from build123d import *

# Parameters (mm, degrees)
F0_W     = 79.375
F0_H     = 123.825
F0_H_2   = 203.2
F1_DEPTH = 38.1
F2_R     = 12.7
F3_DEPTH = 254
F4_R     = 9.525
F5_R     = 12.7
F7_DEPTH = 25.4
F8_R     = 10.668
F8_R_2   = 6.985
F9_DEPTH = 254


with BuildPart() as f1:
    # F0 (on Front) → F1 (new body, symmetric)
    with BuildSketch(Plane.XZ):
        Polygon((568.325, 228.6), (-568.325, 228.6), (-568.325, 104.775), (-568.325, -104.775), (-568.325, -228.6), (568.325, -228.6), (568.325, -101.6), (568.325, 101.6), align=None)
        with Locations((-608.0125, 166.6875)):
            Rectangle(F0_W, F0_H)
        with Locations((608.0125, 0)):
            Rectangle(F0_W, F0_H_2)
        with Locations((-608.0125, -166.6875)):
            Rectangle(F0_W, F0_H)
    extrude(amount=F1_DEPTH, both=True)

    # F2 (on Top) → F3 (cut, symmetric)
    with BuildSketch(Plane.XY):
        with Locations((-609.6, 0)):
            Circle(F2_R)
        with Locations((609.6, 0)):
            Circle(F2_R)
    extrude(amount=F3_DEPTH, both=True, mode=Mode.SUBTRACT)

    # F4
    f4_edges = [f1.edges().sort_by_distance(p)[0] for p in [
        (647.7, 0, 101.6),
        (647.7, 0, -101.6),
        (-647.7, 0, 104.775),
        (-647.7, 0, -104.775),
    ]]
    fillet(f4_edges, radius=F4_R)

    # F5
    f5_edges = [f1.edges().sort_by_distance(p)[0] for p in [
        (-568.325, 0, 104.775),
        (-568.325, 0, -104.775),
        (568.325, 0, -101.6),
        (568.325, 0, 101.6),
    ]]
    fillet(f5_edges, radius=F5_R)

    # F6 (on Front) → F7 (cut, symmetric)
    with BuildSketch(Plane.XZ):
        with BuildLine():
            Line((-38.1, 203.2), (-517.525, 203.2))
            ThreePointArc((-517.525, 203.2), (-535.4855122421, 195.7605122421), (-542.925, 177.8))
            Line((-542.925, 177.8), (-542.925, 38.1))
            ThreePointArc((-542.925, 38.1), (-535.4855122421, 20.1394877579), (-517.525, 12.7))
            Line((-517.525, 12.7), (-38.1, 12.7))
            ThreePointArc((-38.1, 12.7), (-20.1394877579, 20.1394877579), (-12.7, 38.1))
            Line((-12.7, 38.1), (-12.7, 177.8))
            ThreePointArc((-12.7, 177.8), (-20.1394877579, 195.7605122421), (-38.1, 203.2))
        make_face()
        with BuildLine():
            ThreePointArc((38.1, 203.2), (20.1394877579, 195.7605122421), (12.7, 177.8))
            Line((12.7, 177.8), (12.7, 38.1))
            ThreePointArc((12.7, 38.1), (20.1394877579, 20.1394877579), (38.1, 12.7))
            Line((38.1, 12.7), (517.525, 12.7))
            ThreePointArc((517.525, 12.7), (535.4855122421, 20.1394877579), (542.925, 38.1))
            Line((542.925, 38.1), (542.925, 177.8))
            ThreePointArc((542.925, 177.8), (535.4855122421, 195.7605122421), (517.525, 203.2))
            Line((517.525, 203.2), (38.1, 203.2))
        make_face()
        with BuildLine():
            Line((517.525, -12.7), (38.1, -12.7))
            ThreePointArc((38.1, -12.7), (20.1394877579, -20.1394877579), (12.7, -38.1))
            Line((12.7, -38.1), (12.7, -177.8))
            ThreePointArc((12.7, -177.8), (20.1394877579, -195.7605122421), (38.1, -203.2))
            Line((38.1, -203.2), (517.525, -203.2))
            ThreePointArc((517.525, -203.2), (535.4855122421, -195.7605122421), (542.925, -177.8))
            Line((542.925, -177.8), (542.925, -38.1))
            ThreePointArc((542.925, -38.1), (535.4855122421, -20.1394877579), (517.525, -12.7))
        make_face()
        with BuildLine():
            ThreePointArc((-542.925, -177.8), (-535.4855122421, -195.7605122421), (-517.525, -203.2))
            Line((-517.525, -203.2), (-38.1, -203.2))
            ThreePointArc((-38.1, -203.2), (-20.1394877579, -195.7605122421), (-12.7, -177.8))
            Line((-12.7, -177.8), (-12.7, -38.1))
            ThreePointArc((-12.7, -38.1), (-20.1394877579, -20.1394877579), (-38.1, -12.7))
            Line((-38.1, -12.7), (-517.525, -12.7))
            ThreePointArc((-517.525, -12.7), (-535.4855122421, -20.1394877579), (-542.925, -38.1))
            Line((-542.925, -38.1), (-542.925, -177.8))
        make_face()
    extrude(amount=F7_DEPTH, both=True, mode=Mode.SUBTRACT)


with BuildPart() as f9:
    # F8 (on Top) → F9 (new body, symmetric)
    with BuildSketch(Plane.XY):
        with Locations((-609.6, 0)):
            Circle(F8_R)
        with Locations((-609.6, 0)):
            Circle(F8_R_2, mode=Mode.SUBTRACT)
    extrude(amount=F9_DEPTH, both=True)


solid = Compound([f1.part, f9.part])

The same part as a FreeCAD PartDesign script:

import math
import FreeCAD as App
import Part
import Sketcher
Q = App.Units.Quantity


def edges_at(feature, points):
    """Names of the edges that pass closest to the given points."""
    edges = feature.Shape.Edges
    near = lambda p: min(range(len(edges)), key=lambda i: edges[i].distToShape(Part.Vertex(*p))[0])
    return sorted({f"Edge{near(p) + 1}" for p in points})


def add_polygon(sketch, points):
    """Adds a closed chain of lines whose ends are joined by coincident constraints."""
    first, n = sketch.GeometryCount, len(points)
    for a, b in zip(points, points[1:] + points[:1]):
        sketch.addGeometry(Part.LineSegment(App.Vector(*a, 0), App.Vector(*b, 0)), False)
    for i in range(n):
        sketch.addConstraint(Sketcher.Constraint("Coincident", first + i, 2, first + (i + 1) % n, 1))

doc = App.newDocument("Part")
params = doc.addObject("Spreadsheet::Sheet", "Params")
for row, (alias, value) in enumerate([
    ("sketch1_height", "5 in"),
    ("sketch1_height2", "8 in"),
    ("sketch1_height3", "8.25 in"),
    ("sketch1_width", "47.875 in"),
    ("pad1_length", "3 in"),
    ("sketch2_diameter", "1 in"),
    ("pocket1_length", "20 in"),
    ("fillet_radius", "0.375 in"),
    ("fillet2_radius", "0.5 in"),
    ("sketch3_radius", "1 in"),
    ("sketch3_height", "5.5 in"),
    ("sketch3_width", "18.875 in"),
    ("pocket2_length", "2 in"),
    ("sketch4_diameter", "0.84 in"),
    ("sketch4_diameter2", "0.55 in"),
    ("pad2_length", "20 in"),
], start=1):
    params.set(f"A{row}", alias)
    params.set(f"B{row}", "=" + value)
    params.setAlias(f"B{row}", alias)

body = doc.addObject("PartDesign::Body", "Body")

# Sketch on XZ plane
sketch1 = body.newObject("Sketcher::SketchObject", "Sketch")
sketch1.AttachmentSupport = (doc.getObject("XZ_Plane"), [""])
sketch1.MapMode = "FlatFace"
add_polygon(sketch1, [(568, 229), (-648, 229), (-648, 105), (-568, 105), (-568, -105), (-648, -105), (-648, -229), (568, -229), (568, -102), (648, -102), (648, 102), (568, 102)])  # lines 0-11
sketch1.addConstraint(Sketcher.Constraint("Horizontal", 0))
sketch1.addConstraint(Sketcher.Constraint("Vertical", 1))
sketch1.addConstraint(Sketcher.Constraint("Horizontal", 2))
sketch1.addConstraint(Sketcher.Constraint("Vertical", 3))
sketch1.addConstraint(Sketcher.Constraint("Horizontal", 4))
sketch1.addConstraint(Sketcher.Constraint("Vertical", 5))
sketch1.addConstraint(Sketcher.Constraint("Horizontal", 6))
sketch1.addConstraint(Sketcher.Constraint("Vertical", 7))
sketch1.addConstraint(Sketcher.Constraint("Horizontal", 8))
sketch1.addConstraint(Sketcher.Constraint("Vertical", 9))
sketch1.addConstraint(Sketcher.Constraint("Horizontal", 10))
sketch1.addConstraint(Sketcher.Constraint("Vertical", 11))
sketch1.addConstraint(Sketcher.Constraint("Symmetric", 1, 2, 4, 2, -1))
sketch1.addConstraint(Sketcher.Constraint("Symmetric", 7, 2, 10, 2, -1))
sketch1.addConstraint(Sketcher.Constraint("Equal", 4, 8))
sketch1.addConstraint(Sketcher.Constraint("Equal", 1, 5))
sketch1.addConstraint(Sketcher.Constraint("DistanceY", 7, 1, 7, 2, Q("5 in")))
sketch1.addConstraint(Sketcher.Constraint("DistanceY", 9, 1, 9, 2, Q("8 in")))
sketch1.addConstraint(Sketcher.Constraint("DistanceX", 4, 2, 8, 2, Q("51 in")))
sketch1.addConstraint(Sketcher.Constraint("DistanceY", 3, 2, 3, 1, Q("8.25 in")))
sketch1.addConstraint(Sketcher.Constraint("DistanceX", 0, 2, -1, 1, Q("25.5 in")))
sketch1.addConstraint(Sketcher.Constraint("DistanceX", 0, 2, 0, 1, Q("47.875 in")))
sketch1.setExpression("Constraints[28]", "Params.sketch1_height")
sketch1.setExpression("Constraints[29]", "Params.sketch1_height2")
sketch1.setExpression("Constraints[31]", "Params.sketch1_height3")
sketch1.setExpression("Constraints[33]", "Params.sketch1_width")
pad1 = body.newObject("PartDesign::Pad", "Pad")
pad1.Profile = sketch1
pad1.setExpression("Length", "Params.pad1_length")
pad1.Midplane = True

# Sketch on XY plane
sketch2 = body.newObject("Sketcher::SketchObject", "Sketch001")
sketch2.AttachmentSupport = (doc.getObject("XY_Plane"), [""])
sketch2.MapMode = "FlatFace"
sketch2.addGeometry(Part.Circle(App.Vector(-610, 0, 0), App.Vector(0, 0, 1), 13), False)
sketch2.addGeometry(Part.Circle(App.Vector(610, 0, 0), App.Vector(0, 0, 1), 13), False)
sketch2.addConstraint(Sketcher.Constraint("Equal", 0, 1))
sketch2.addConstraint(Sketcher.Constraint("Symmetric", 0, 3, 1, 3, -1, 1))
sketch2.addConstraint(Sketcher.Constraint("PointOnObject", 0, 3, -1))
sketch2.addConstraint(Sketcher.Constraint("Diameter", 0, Q("1 in")))
sketch2.addConstraint(Sketcher.Constraint("DistanceX", 0, 3, -1, 1, Q("24 in")))
sketch2.setExpression("Constraints[3]", "Params.sketch2_diameter")
pocket1 = body.newObject("PartDesign::Pocket", "Pocket")
pocket1.Profile = sketch2
pocket1.setExpression("Length", "Params.pocket1_length")
pocket1.Midplane = True
doc.recompute()

fillet = body.newObject("PartDesign::Fillet", "Fillet")
fillet.Base = (pocket1, edges_at(pocket1, [
    (647.7, 0, 101.6),
    (647.7, 0, -101.6),
    (-647.7, 0, 104.775),
    (-647.7, 0, -104.775),
]))
fillet.setExpression("Radius", "Params.fillet_radius")
doc.recompute()

fillet2 = body.newObject("PartDesign::Fillet", "Fillet001")
fillet2.Base = (fillet, edges_at(fillet, [
    (-568.325, 0, 104.775),
    (-568.325, 0, -104.775),
    (568.325, 0, -101.6),
    (568.325, 0, 101.6),
]))
fillet2.setExpression("Radius", "Params.fillet2_radius")

# Sketch on XZ plane
sketch3 = body.newObject("Sketcher::SketchObject", "Sketch002")
sketch3.AttachmentSupport = (doc.getObject("XZ_Plane"), [""])
sketch3.MapMode = "FlatFace"
sketch3.addGeometry(Part.LineSegment(App.Vector(-38, 203, 0), App.Vector(-518, 203, 0)), False)
sketch3.addGeometry(Part.ArcOfCircle(Part.Circle(App.Vector(-518, 178, 0), App.Vector(0, 0, 1), 25), math.radians(90), math.radians(180)), False)
sketch3.addGeometry(Part.LineSegment(App.Vector(-543, 178, 0), App.Vector(-543, 38, 0)), False)
sketch3.addGeometry(Part.ArcOfCircle(Part.Circle(App.Vector(-518, 38, 0), App.Vector(0, 0, 1), 25), math.radians(180), math.radians(270)), False)
sketch3.addGeometry(Part.LineSegment(App.Vector(-518, 13, 0), App.Vector(-38, 13, 0)), False)
sketch3.addGeometry(Part.ArcOfCircle(Part.Circle(App.Vector(-38, 38, 0), App.Vector(0, 0, 1), 25), math.radians(-90), math.radians(0)), False)
sketch3.addGeometry(Part.LineSegment(App.Vector(-13, 38, 0), App.Vector(-13, 178, 0)), False)
sketch3.addGeometry(Part.ArcOfCircle(Part.Circle(App.Vector(-38, 178, 0), App.Vector(0, 0, 1), 25), math.radians(0), math.radians(90)), False)
sketch3.addGeometry(Part.ArcOfCircle(Part.Circle(App.Vector(38, 178, 0), App.Vector(0, 0, 1), 25), math.radians(90), math.radians(180)), False)
sketch3.addGeometry(Part.LineSegment(App.Vector(13, 178, 0), App.Vector(13, 38, 0)), False)
sketch3.addGeometry(Part.ArcOfCircle(Part.Circle(App.Vector(38, 38, 0), App.Vector(0, 0, 1), 25), math.radians(180), math.radians(270)), False)
sketch3.addGeometry(Part.LineSegment(App.Vector(38, 13, 0), App.Vector(518, 13, 0)), False)
sketch3.addGeometry(Part.ArcOfCircle(Part.Circle(App.Vector(518, 38, 0), App.Vector(0, 0, 1), 25), math.radians(-90), math.radians(0)), False)
sketch3.addGeometry(Part.LineSegment(App.Vector(543, 38, 0), App.Vector(543, 178, 0)), False)
sketch3.addGeometry(Part.ArcOfCircle(Part.Circle(App.Vector(518, 178, 0), App.Vector(0, 0, 1), 25), math.radians(0), math.radians(90)), False)
sketch3.addGeometry(Part.LineSegment(App.Vector(518, 203, 0), App.Vector(38, 203, 0)), False)
sketch3.addGeometry(Part.LineSegment(App.Vector(518, -13, 0), App.Vector(38, -13, 0)), False)
sketch3.addGeometry(Part.ArcOfCircle(Part.Circle(App.Vector(38, -38, 0), App.Vector(0, 0, 1), 25), math.radians(90), math.radians(180)), False)
sketch3.addGeometry(Part.LineSegment(App.Vector(13, -38, 0), App.Vector(13, -178, 0)), False)
sketch3.addGeometry(Part.ArcOfCircle(Part.Circle(App.Vector(38, -178, 0), App.Vector(0, 0, 1), 25), math.radians(180), math.radians(270)), False)
sketch3.addGeometry(Part.LineSegment(App.Vector(38, -203, 0), App.Vector(518, -203, 0)), False)
sketch3.addGeometry(Part.ArcOfCircle(Part.Circle(App.Vector(518, -178, 0), App.Vector(0, 0, 1), 25), math.radians(-90), math.radians(0)), False)
sketch3.addGeometry(Part.LineSegment(App.Vector(543, -178, 0), App.Vector(543, -38, 0)), False)
sketch3.addGeometry(Part.ArcOfCircle(Part.Circle(App.Vector(518, -38, 0), App.Vector(0, 0, 1), 25), math.radians(0), math.radians(90)), False)
sketch3.addGeometry(Part.ArcOfCircle(Part.Circle(App.Vector(-518, -178, 0), App.Vector(0, 0, 1), 25), math.radians(180), math.radians(270)), False)
sketch3.addGeometry(Part.LineSegment(App.Vector(-518, -203, 0), App.Vector(-38, -203, 0)), False)
sketch3.addGeometry(Part.ArcOfCircle(Part.Circle(App.Vector(-38, -178, 0), App.Vector(0, 0, 1), 25), math.radians(-90), math.radians(0)), False)
sketch3.addGeometry(Part.LineSegment(App.Vector(-13, -178, 0), App.Vector(-13, -38, 0)), False)
sketch3.addGeometry(Part.ArcOfCircle(Part.Circle(App.Vector(-38, -38, 0), App.Vector(0, 0, 1), 25), math.radians(0), math.radians(90)), False)
sketch3.addGeometry(Part.LineSegment(App.Vector(-38, -13, 0), App.Vector(-518, -13, 0)), False)
sketch3.addGeometry(Part.ArcOfCircle(Part.Circle(App.Vector(-518, -38, 0), App.Vector(0, 0, 1), 25), math.radians(90), math.radians(180)), False)
sketch3.addGeometry(Part.LineSegment(App.Vector(-543, -38, 0), App.Vector(-543, -178, 0)), False)
sketch3.addConstraint(Sketcher.Constraint("Tangent", 0, 2, 1, 1))
sketch3.addConstraint(Sketcher.Constraint("Tangent", 1, 2, 2, 1))
sketch3.addConstraint(Sketcher.Constraint("Tangent", 2, 2, 3, 1))
sketch3.addConstraint(Sketcher.Constraint("Tangent", 3, 2, 4, 1))
sketch3.addConstraint(Sketcher.Constraint("Tangent", 4, 2, 5, 1))
sketch3.addConstraint(Sketcher.Constraint("Tangent", 5, 2, 6, 1))
sketch3.addConstraint(Sketcher.Constraint("Tangent", 6, 2, 7, 1))
sketch3.addConstraint(Sketcher.Constraint("Tangent", 7, 2, 0, 1))
sketch3.addConstraint(Sketcher.Constraint("Tangent", 8, 2, 9, 1))
sketch3.addConstraint(Sketcher.Constraint("Tangent", 9, 2, 10, 1))
sketch3.addConstraint(Sketcher.Constraint("Tangent", 10, 2, 11, 1))
sketch3.addConstraint(Sketcher.Constraint("Tangent", 11, 2, 12, 1))
sketch3.addConstraint(Sketcher.Constraint("Tangent", 12, 2, 13, 1))
sketch3.addConstraint(Sketcher.Constraint("Tangent", 13, 2, 14, 1))
sketch3.addConstraint(Sketcher.Constraint("Tangent", 14, 2, 15, 1))
sketch3.addConstraint(Sketcher.Constraint("Tangent", 15, 2, 8, 1))
sketch3.addConstraint(Sketcher.Constraint("Tangent", 16, 2, 17, 1))
sketch3.addConstraint(Sketcher.Constraint("Tangent", 17, 2, 18, 1))
sketch3.addConstraint(Sketcher.Constraint("Tangent", 18, 2, 19, 1))
sketch3.addConstraint(Sketcher.Constraint("Tangent", 19, 2, 20, 1))
sketch3.addConstraint(Sketcher.Constraint("Tangent", 20, 2, 21, 1))
sketch3.addConstraint(Sketcher.Constraint("Tangent", 21, 2, 22, 1))
sketch3.addConstraint(Sketcher.Constraint("Tangent", 22, 2, 23, 1))
sketch3.addConstraint(Sketcher.Constraint("Tangent", 23, 2, 16, 1))
sketch3.addConstraint(Sketcher.Constraint("Tangent", 24, 2, 25, 1))
sketch3.addConstraint(Sketcher.Constraint("Tangent", 25, 2, 26, 1))
sketch3.addConstraint(Sketcher.Constraint("Tangent", 26, 2, 27, 1))
sketch3.addConstraint(Sketcher.Constraint("Tangent", 27, 2, 28, 1))
sketch3.addConstraint(Sketcher.Constraint("Tangent", 28, 2, 29, 1))
sketch3.addConstraint(Sketcher.Constraint("Tangent", 29, 2, 30, 1))
sketch3.addConstraint(Sketcher.Constraint("Tangent", 30, 2, 31, 1))
sketch3.addConstraint(Sketcher.Constraint("Tangent", 31, 2, 24, 1))
sketch3.addConstraint(Sketcher.Constraint("Horizontal", 0))
sketch3.addConstraint(Sketcher.Constraint("Vertical", 2))
sketch3.addConstraint(Sketcher.Constraint("Horizontal", 4))
sketch3.addConstraint(Sketcher.Constraint("Vertical", 6))
sketch3.addConstraint(Sketcher.Constraint("Vertical", 9))
sketch3.addConstraint(Sketcher.Constraint("Horizontal", 11))
sketch3.addConstraint(Sketcher.Constraint("Vertical", 13))
sketch3.addConstraint(Sketcher.Constraint("Horizontal", 15))
sketch3.addConstraint(Sketcher.Constraint("Horizontal", 16))
sketch3.addConstraint(Sketcher.Constraint("Vertical", 18))
sketch3.addConstraint(Sketcher.Constraint("Horizontal", 20))
sketch3.addConstraint(Sketcher.Constraint("Vertical", 22))
sketch3.addConstraint(Sketcher.Constraint("Horizontal", 25))
sketch3.addConstraint(Sketcher.Constraint("Vertical", 27))
sketch3.addConstraint(Sketcher.Constraint("Horizontal", 29))
sketch3.addConstraint(Sketcher.Constraint("Vertical", 31))
sketch3.addConstraint(Sketcher.Constraint("Equal", 1, 3))
sketch3.addConstraint(Sketcher.Constraint("Equal", 3, 5))
sketch3.addConstraint(Sketcher.Constraint("Equal", 5, 7))
sketch3.addConstraint(Sketcher.Constraint("Equal", 7, 8))
sketch3.addConstraint(Sketcher.Constraint("Equal", 8, 10))
sketch3.addConstraint(Sketcher.Constraint("Equal", 10, 12))
sketch3.addConstraint(Sketcher.Constraint("Equal", 12, 14))
sketch3.addConstraint(Sketcher.Constraint("Equal", 14, 17))
sketch3.addConstraint(Sketcher.Constraint("Equal", 17, 19))
sketch3.addConstraint(Sketcher.Constraint("Equal", 19, 21))
sketch3.addConstraint(Sketcher.Constraint("Equal", 21, 23))
sketch3.addConstraint(Sketcher.Constraint("Equal", 23, 24))
sketch3.addConstraint(Sketcher.Constraint("Equal", 24, 26))
sketch3.addConstraint(Sketcher.Constraint("Equal", 26, 28))
sketch3.addConstraint(Sketcher.Constraint("Equal", 28, 30))
sketch3.addConstraint(Sketcher.Constraint("Symmetric", 5, 3, 17, 3, -1, 1))
sketch3.addConstraint(Sketcher.Constraint("Symmetric", 1, 3, 21, 3, -1, 1))
sketch3.addConstraint(Sketcher.Constraint("Symmetric", 14, 3, 24, 3, -1, 1))
sketch3.addConstraint(Sketcher.Constraint("Symmetric", 10, 3, 28, 3, -1, 1))
sketch3.addConstraint(Sketcher.Constraint("Symmetric", 7, 3, 8, 3, -2))
sketch3.addConstraint(Sketcher.Constraint("Symmetric", 3, 3, 12, 3, -2))
sketch3.addConstraint(Sketcher.Constraint("Radius", 1, Q("1 in")))
sketch3.addConstraint(Sketcher.Constraint("DistanceY", 2, 2, 2, 1, Q("5.5 in")))
sketch3.addConstraint(Sketcher.Constraint("DistanceY", -1, 1, 1, 3, Q("7 in")))
sketch3.addConstraint(Sketcher.Constraint("DistanceX", 7, 3, 8, 3, Q("3 in")))
sketch3.addConstraint(Sketcher.Constraint("DistanceX", 0, 2, 0, 1, Q("18.875 in")))
sketch3.setExpression("Constraints[69]", "Params.sketch3_radius")
sketch3.setExpression("Constraints[70]", "Params.sketch3_height")
sketch3.setExpression("Constraints[73]", "Params.sketch3_width")
pocket2 = body.newObject("PartDesign::Pocket", "Pocket001")
pocket2.Profile = sketch3
pocket2.setExpression("Length", "Params.pocket2_length")
pocket2.Midplane = True
body2 = doc.addObject("PartDesign::Body", "Body001")

# Sketch on XY plane
sketch4 = body2.newObject("Sketcher::SketchObject", "Sketch003")
sketch4.AttachmentSupport = (doc.getObject("XY_Plane001"), [""])
sketch4.MapMode = "FlatFace"
sketch4.addGeometry(Part.Circle(App.Vector(-610, 0, 0), App.Vector(0, 0, 1), 11), False)
sketch4.addGeometry(Part.Circle(App.Vector(-610, 0, 0), App.Vector(0, 0, 1), 7), False)
sketch4.addConstraint(Sketcher.Constraint("Coincident", 1, 3, 0, 3))
sketch4.addConstraint(Sketcher.Constraint("PointOnObject", 0, 3, -1))
sketch4.addConstraint(Sketcher.Constraint("Diameter", 0, Q("0.84 in")))
sketch4.addConstraint(Sketcher.Constraint("Diameter", 1, Q("0.55 in")))
sketch4.addConstraint(Sketcher.Constraint("DistanceX", 0, 3, -1, 1, Q("24 in")))
sketch4.setExpression("Constraints[2]", "Params.sketch4_diameter")
sketch4.setExpression("Constraints[3]", "Params.sketch4_diameter2")
pad2 = body2.newObject("PartDesign::Pad", "Pad001")
pad2.Profile = sketch4
pad2.setExpression("Length", "Params.pad2_length")
pad2.Midplane = True

doc.recompute()
